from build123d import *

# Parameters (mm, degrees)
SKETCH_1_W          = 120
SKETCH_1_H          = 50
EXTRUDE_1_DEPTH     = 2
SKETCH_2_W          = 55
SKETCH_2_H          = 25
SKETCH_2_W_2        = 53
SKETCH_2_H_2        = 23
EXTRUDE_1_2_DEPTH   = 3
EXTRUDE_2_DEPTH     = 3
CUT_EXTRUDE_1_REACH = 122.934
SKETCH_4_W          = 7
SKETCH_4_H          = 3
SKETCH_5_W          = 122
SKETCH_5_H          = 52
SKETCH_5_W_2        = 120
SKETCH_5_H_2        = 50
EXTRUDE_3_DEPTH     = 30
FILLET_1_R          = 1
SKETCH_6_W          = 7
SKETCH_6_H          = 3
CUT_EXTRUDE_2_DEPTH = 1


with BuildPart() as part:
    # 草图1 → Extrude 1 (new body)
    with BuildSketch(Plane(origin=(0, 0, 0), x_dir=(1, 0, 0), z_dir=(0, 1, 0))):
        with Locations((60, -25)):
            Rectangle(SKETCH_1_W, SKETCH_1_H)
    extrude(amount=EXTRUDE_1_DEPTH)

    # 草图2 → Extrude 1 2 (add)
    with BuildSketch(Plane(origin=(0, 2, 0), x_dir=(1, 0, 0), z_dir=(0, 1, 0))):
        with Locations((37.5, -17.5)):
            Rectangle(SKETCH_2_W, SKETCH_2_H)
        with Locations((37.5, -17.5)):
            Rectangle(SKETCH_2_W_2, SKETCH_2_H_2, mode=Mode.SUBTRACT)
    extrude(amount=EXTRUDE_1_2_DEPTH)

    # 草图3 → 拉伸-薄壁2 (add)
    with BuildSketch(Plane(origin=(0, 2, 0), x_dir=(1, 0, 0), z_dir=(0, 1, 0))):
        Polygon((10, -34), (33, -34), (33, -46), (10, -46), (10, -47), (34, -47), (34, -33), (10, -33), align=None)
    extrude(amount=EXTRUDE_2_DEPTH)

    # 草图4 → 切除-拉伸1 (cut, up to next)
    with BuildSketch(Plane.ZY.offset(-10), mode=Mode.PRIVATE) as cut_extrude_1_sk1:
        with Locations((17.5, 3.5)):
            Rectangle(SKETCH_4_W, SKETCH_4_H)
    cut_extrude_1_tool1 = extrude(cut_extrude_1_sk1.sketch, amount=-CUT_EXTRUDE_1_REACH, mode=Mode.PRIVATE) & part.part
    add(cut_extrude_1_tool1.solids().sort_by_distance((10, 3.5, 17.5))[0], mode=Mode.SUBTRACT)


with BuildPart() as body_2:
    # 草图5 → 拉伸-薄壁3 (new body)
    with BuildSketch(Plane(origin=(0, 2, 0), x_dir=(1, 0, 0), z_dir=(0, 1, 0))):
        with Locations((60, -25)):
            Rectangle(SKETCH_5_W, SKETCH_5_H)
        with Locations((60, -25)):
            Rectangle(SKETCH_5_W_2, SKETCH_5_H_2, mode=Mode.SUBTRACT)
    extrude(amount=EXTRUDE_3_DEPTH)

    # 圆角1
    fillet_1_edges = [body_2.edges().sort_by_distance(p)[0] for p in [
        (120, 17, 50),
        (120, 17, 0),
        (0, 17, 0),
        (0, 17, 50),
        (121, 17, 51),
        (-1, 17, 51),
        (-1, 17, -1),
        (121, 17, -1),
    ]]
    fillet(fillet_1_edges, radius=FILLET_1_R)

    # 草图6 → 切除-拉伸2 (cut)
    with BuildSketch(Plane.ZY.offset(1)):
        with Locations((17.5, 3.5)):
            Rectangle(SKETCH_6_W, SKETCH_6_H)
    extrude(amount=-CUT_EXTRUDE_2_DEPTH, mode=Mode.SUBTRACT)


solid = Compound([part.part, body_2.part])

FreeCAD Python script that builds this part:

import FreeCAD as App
import Part
import Sketcher

V = App.Vector


def edges_at(feature, points):
    """Names of the edges that pass closest to the given points."""
    edges = feature.Shape.Edges
    near = lambda p: min(range(len(edges)), key=lambda i: edges[i].distToShape(Part.Vertex(*p))[0])
    return sorted({f"Edge{near(p) + 1}" for p in points})

doc = App.newDocument("Part")
params = doc.addObject("Spreadsheet::Sheet", "Params")
for row, (alias, value) in enumerate([
    ("sketch1_width", "120 mm"),
    ("sketch1_height", "50 mm"),
    ("pad1_length", "2 mm"),
    ("sketch2_width", "55 mm"),
    ("sketch2_width2", "53 mm"),
    ("sketch2_height", "25 mm"),
    ("sketch2_height2", "23 mm"),
    ("pad2_length", "3 mm"),
    ("sketch3_width", "23 mm"),
    ("sketch3_width2", "24 mm"),
    ("sketch3_height", "12 mm"),
    ("sketch3_height2", "1 mm"),
    ("pad3_length", "3 mm"),
    ("sketch4_width", "3 mm"),
    ("sketch4_height", "7 mm"),
    ("sketch5_width", "122 mm"),
    ("sketch5_width2", "120 mm"),
    ("sketch5_height", "52 mm"),
    ("sketch5_height2", "50 mm"),
    ("pad4_length", "30 mm"),
    ("fillet_radius", "1 mm"),
    ("sketch6_width", "3 mm"),
    ("sketch6_height", "7 mm"),
    ("pocket2_length", "1 mm"),
], start=1):
    params.set(f"A{row}", alias)
    params.set(f"B{row}", "=" + value)
    params.setAlias(f"B{row}", alias)

body = doc.addObject("PartDesign::Body", "Body")

sketch1 = doc.addObject("Sketcher::SketchObject", "Sketch")
body.addObject(sketch1)
sketch1.AttachmentSupport = (doc.XZ_Plane, [""])
sketch1.MapMode = "FlatFace"
sketch1.addGeometry(Part.LineSegment(V(0, 0, 0), V(0, 50, 0)), False)
sketch1.addGeometry(Part.LineSegment(V(0, 50, 0), V(120, 50, 0)), False)
sketch1.addGeometry(Part.LineSegment(V(120, 50, 0), V(120, 0, 0)), False)
sketch1.addGeometry(Part.LineSegment(V(120, 0, 0), V(0, 0, 0)), False)
sketch1.addConstraint(Sketcher.Constraint("Coincident", 0, 2, 1, 1))
sketch1.addConstraint(Sketcher.Constraint("Coincident", 1, 2, 2, 1))
sketch1.addConstraint(Sketcher.Constraint("Coincident", 2, 2, 3, 1))
sketch1.addConstraint(Sketcher.Constraint("Coincident", 3, 2, 0, 1))
sketch1.addConstraint(Sketcher.Constraint("Vertical", 0))
sketch1.addConstraint(Sketcher.Constraint("Horizontal", 1))
sketch1.addConstraint(Sketcher.Constraint("Vertical", 2))
sketch1.addConstraint(Sketcher.Constraint("Horizontal", 3))
sketch1.addConstraint(Sketcher.Constraint("Coincident", 3, 2, -1, 1))
sketch1.addConstraint(Sketcher.Constraint("DistanceX", 1, 1, 1, 2, 120.0))
sketch1.addConstraint(Sketcher.Constraint("DistanceY", 0, 1, 0, 2, 50.0))
sketch1.setExpression("Constraints[9]", "Params.sketch1_width")
sketch1.setExpression("Constraints[10]", "Params.sketch1_height")
pad1 = doc.addObject("PartDesign::Pad", "Pad")
body.addObject(pad1)
pad1.Profile = sketch1
pad1.setExpression("Length", "Params.pad1_length")
pad1.Reversed = True

sketch2 = doc.addObject("Sketcher::SketchObject", "Sketch001")
body.addObject(sketch2)
sketch2.AttachmentSupport = (doc.XZ_Plane, [""])
sketch2.MapMode = "FlatFace"
sketch2.AttachmentOffset = App.Placement(V(0, 0, -2), App.Rotation())
sketch2.addGeometry(Part.LineSegment(V(10, 5, 0), V(10, 30, 0)), False)
sketch2.addGeometry(Part.LineSegment(V(10, 30, 0), V(65, 30, 0)), False)
sketch2.addGeometry(Part.LineSegment(V(65, 30, 0), V(65, 5, 0)), False)
sketch2.addGeometry(Part.LineSegment(V(65, 5, 0), V(10, 5, 0)), False)
sketch2.addGeometry(Part.LineSegment(V(64, 29, 0), V(11, 29, 0)), False)
sketch2.addGeometry(Part.LineSegment(V(11, 29, 0), V(11, 6, 0)), False)
sketch2.addGeometry(Part.LineSegment(V(11, 6, 0), V(64, 6, 0)), False)
sketch2.addGeometry(Part.LineSegment(V(64, 6, 0), V(64, 29, 0)), False)
sketch2.addConstraint(Sketcher.Constraint("Coincident", 0, 2, 1, 1))
sketch2.addConstraint(Sketcher.Constraint("Coincident", 1, 2, 2, 1))
sketch2.addConstraint(Sketcher.Constraint("Coincident", 2, 2, 3, 1))
sketch2.addConstraint(Sketcher.Constraint("Coincident", 3, 2, 0, 1))
sketch2.addConstraint(Sketcher.Constraint("Coincident", 4, 2, 5, 1))
sketch2.addConstraint(Sketcher.Constraint("Coincident", 5, 2, 6, 1))
sketch2.addConstraint(Sketcher.Constraint("Coincident", 6, 2, 7, 1))
sketch2.addConstraint(Sketcher.Constraint("Coincident", 7, 2, 4, 1))
sketch2.addConstraint(Sketcher.Constraint("Vertical", 0))
sketch2.addConstraint(Sketcher.Constraint("Horizontal", 1))
sketch2.addConstraint(Sketcher.Constraint("Vertical", 2))
sketch2.addConstraint(Sketcher.Constraint("Horizontal", 3))
sketch2.addConstraint(Sketcher.Constraint("Horizontal", 4))
sketch2.addConstraint(Sketcher.Constraint("Vertical", 5))
sketch2.addConstraint(Sketcher.Constraint("Horizontal", 6))
sketch2.addConstraint(Sketcher.Constraint("Vertical", 7))
sketch2.addConstraint(Sketcher.Constraint("DistanceX", 1, 1, 1, 2, 55.0))
sketch2.addConstraint(Sketcher.Constraint("DistanceX", 4, 2, 4, 1, 53.0))
sketch2.addConstraint(Sketcher.Constraint("DistanceY", 0, 1, 0, 2, 25.0))
sketch2.addConstraint(Sketcher.Constraint("DistanceY", 5, 2, 5, 1, 23.0))
sketch2.addConstraint(Sketcher.Constraint("DistanceX", -1, 1, 0, 2, 10.0))
sketch2.addConstraint(Sketcher.Constraint("DistanceY", -1, 1, 0, 2, 30.0))
sketch2.addConstraint(Sketcher.Constraint("DistanceX", -1, 1, 4, 2, 11.0))
sketch2.addConstraint(Sketcher.Constraint("DistanceY", -1, 1, 4, 2, 29.0))
sketch2.setExpression("Constraints[16]", "Params.sketch2_width")
sketch2.setExpression("Constraints[17]", "Params.sketch2_width2")
sketch2.setExpression("Constraints[18]", "Params.sketch2_height")
sketch2.setExpression("Constraints[19]", "Params.sketch2_height2")
pad2 = doc.addObject("PartDesign::Pad", "Pad001")
body.addObject(pad2)
pad2.Profile = sketch2
pad2.setExpression("Length", "Params.pad2_length")
pad2.Reversed = True

sketch3 = doc.addObject("Sketcher::SketchObject", "Sketch002")
body.addObject(sketch3)
sketch3.AttachmentSupport = (doc.XZ_Plane, [""])
sketch3.MapMode = "FlatFace"
sketch3.AttachmentOffset = App.Placement(V(0, 0, -2), App.Rotation())
sketch3.addGeometry(Part.LineSegment(V(10, 34, 0), V(33, 34, 0)), False)
sketch3.addGeometry(Part.LineSegment(V(33, 34, 0), V(33, 46, 0)), False)
sketch3.addGeometry(Part.LineSegment(V(33, 46, 0), V(10, 46, 0)), False)
sketch3.addGeometry(Part.LineSegment(V(10, 46, 0), V(10, 47, 0)), False)
sketch3.addGeometry(Part.LineSegment(V(10, 47, 0), V(34, 47, 0)), False)
sketch3.addGeometry(Part.LineSegment(V(34, 47, 0), V(34, 33, 0)), False)
sketch3.addGeometry(Part.LineSegment(V(34, 33, 0), V(10, 33, 0)), False)
sketch3.addGeometry(Part.LineSegment(V(10, 33, 0), V(10, 34, 0)), False)
sketch3.addConstraint(Sketcher.Constraint("Coincident", 0, 2, 1, 1))
sketch3.addConstraint(Sketcher.Constraint("Coincident", 1, 2, 2, 1))
sketch3.addConstraint(Sketcher.Constraint("Coincident", 2, 2, 3, 1))
sketch3.addConstraint(Sketcher.Constraint("Coincident", 3, 2, 4, 1))
sketch3.addConstraint(Sketcher.Constraint("Coincident", 4, 2, 5, 1))
sketch3.addConstraint(Sketcher.Constraint("Coincident", 5, 2, 6, 1))
sketch3.addConstraint(Sketcher.Constraint("Coincident", 6, 2, 7, 1))
sketch3.addConstraint(Sketcher.Constraint("Coincident", 7, 2, 0, 1))
sketch3.addConstraint(Sketcher.Constraint("Horizontal", 0))
sketch3.addConstraint(Sketcher.Constraint("Vertical", 1))
sketch3.addConstraint(Sketcher.Constraint("Horizontal", 2))
sketch3.addConstraint(Sketcher.Constraint("Vertical", 3))
sketch3.addConstraint(Sketcher.Constraint("Horizontal", 4))
sketch3.addConstraint(Sketcher.Constraint("Vertical", 5))
sketch3.addConstraint(Sketcher.Constraint("Horizontal", 6))
sketch3.addConstraint(Sketcher.Constraint("Vertical", 7))
sketch3.addConstraint(Sketcher.Constraint("Vertical", 3, 2, 6, 2))
sketch3.addConstraint(Sketcher.Constraint("Equal", 3, 7))
sketch3.addConstraint(Sketcher.Constraint("DistanceX", 0, 1, 0, 2, 23.0))
sketch3.addConstraint(Sketcher.Constraint("DistanceX", 4, 1, 4, 2, 24.0))
sketch3.addConstraint(Sketcher.Constraint("DistanceY", 1, 1, 1, 2, 12.0))
sketch3.addConstraint(Sketcher.Constraint("DistanceY", 3, 1, 3, 2, 1.0))
sketch3.addConstraint(Sketcher.Constraint("DistanceX", -1, 1, 0, 2, 33.0))
sketch3.addConstraint(Sketcher.Constraint("DistanceY", -1, 1, 0, 2, 34.0))
sketch3.setExpression("Constraints[18]", "Params.sketch3_width")
sketch3.setExpression("Constraints[19]", "Params.sketch3_width2")
sketch3.setExpression("Constraints[20]", "Params.sketch3_height")
sketch3.setExpression("Constraints[21]", "Params.sketch3_height2")
pad3 = doc.addObject("PartDesign::Pad", "Pad002")
body.addObject(pad3)
pad3.Profile = sketch3
pad3.setExpression("Length", "Params.pad3_length")
pad3.Reversed = True

sketch4 = doc.addObject("Sketcher::SketchObject", "Sketch003")
body.addObject(sketch4)
sketch4.AttachmentSupport = (doc.YZ_Plane, [""])
sketch4.MapMode = "FlatFace"
sketch4.AttachmentOffset = App.Placement(V(0, 0, 10), App.Rotation())
sketch4.addGeometry(Part.LineSegment(V(5, 14, 0), V(2, 14, 0)), False)
sketch4.addGeometry(Part.LineSegment(V(2, 14, 0), V(2, 21, 0)), False)
sketch4.addGeometry(Part.LineSegment(V(2, 21, 0), V(5, 21, 0)), False)
sketch4.addGeometry(Part.LineSegment(V(5, 21, 0), V(5, 14, 0)), False)
sketch4.addConstraint(Sketcher.Constraint("Coincident", 0, 2, 1, 1))
sketch4.addConstraint(Sketcher.Constraint("Coincident", 1, 2, 2, 1))
sketch4.addConstraint(Sketcher.Constraint("Coincident", 2, 2, 3, 1))
sketch4.addConstraint(Sketcher.Constraint("Coincident", 3, 2, 0, 1))
sketch4.addConstraint(Sketcher.Constraint("Horizontal", 0))
sketch4.addConstraint(Sketcher.Constraint("Vertical", 1))
sketch4.addConstraint(Sketcher.Constraint("Horizontal", 2))
sketch4.addConstraint(Sketcher.Constraint("Vertical", 3))
sketch4.addConstraint(Sketcher.Constraint("DistanceX", 0, 2, 0, 1, 3.0))
sketch4.addConstraint(Sketcher.Constraint("DistanceY", 1, 1, 1, 2, 7.0))
sketch4.addConstraint(Sketcher.Constraint("DistanceX", -1, 1, 0, 2, 2.0))
sketch4.addConstraint(Sketcher.Constraint("DistanceY", -1, 1, 0, 2, 14.0))
sketch4.setExpression("Constraints[8]", "Params.sketch4_width")
sketch4.setExpression("Constraints[9]", "Params.sketch4_height")
pocket1 = doc.addObject("PartDesign::Pocket", "Pocket")
body.addObject(pocket1)
pocket1.Profile = sketch4
pocket1.Type = "UpToFirst"
pocket1.Reversed = True
body2 = doc.addObject("PartDesign::Body", "Body001")

sketch5 = doc.addObject("Sketcher::SketchObject", "Sketch004")
body2.addObject(sketch5)
sketch5.AttachmentSupport = (doc.getObject("XZ_Plane001"), [""])
sketch5.MapMode = "FlatFace"
sketch5.AttachmentOffset = App.Placement(V(0, 0, -2), App.Rotation())
sketch5.addGeometry(Part.LineSegment(V(-1, -1, 0), V(-1, 51, 0)), False)
sketch5.addGeometry(Part.LineSegment(V(-1, 51, 0), V(121, 51, 0)), False)
sketch5.addGeometry(Part.LineSegment(V(121, 51, 0), V(121, -1, 0)), False)
sketch5.addGeometry(Part.LineSegment(V(121, -1, 0), V(-1, -1, 0)), False)
sketch5.addGeometry(Part.LineSegment(V(120, 50, 0), V(0, 50, 0)), False)
sketch5.addGeometry(Part.LineSegment(V(0, 50, 0), V(0, 0, 0)), False)
sketch5.addGeometry(Part.LineSegment(V(0, 0, 0), V(120, 0, 0)), False)
sketch5.addGeometry(Part.LineSegment(V(120, 0, 0), V(120, 50, 0)), False)
sketch5.addConstraint(Sketcher.Constraint("Coincident", 0, 2, 1, 1))
sketch5.addConstraint(Sketcher.Constraint("Coincident", 1, 2, 2, 1))
sketch5.addConstraint(Sketcher.Constraint("Coincident", 2, 2, 3, 1))
sketch5.addConstraint(Sketcher.Constraint("Coincident", 3, 2, 0, 1))
sketch5.addConstraint(Sketcher.Constraint("Coincident", 4, 2, 5, 1))
sketch5.addConstraint(Sketcher.Constraint("Coincident", 5, 2, 6, 1))
sketch5.addConstraint(Sketcher.Constraint("Coincident", 6, 2, 7, 1))
sketch5.addConstraint(Sketcher.Constraint("Coincident", 7, 2, 4, 1))
sketch5.addConstraint(Sketcher.Constraint("Vertical", 0))
sketch5.addConstraint(Sketcher.Constraint("Horizontal", 1))
sketch5.addConstraint(Sketcher.Constraint("Vertical", 2))
sketch5.addConstraint(Sketcher.Constraint("Horizontal", 3))
sketch5.addConstraint(Sketcher.Constraint("Horizontal", 4))
sketch5.addConstraint(Sketcher.Constraint("Vertical", 5))
sketch5.addConstraint(Sketcher.Constraint("Horizontal", 6))
sketch5.addConstraint(Sketcher.Constraint("Vertical", 7))
sketch5.addConstraint(Sketcher.Constraint("Coincident", 5, 2, -1, 1))
sketch5.addConstraint(Sketcher.Constraint("DistanceX", 1, 1, 1, 2, 122.0))
sketch5.addConstraint(Sketcher.Constraint("DistanceX", 4, 2, 4, 1, 120.0))
sketch5.addConstraint(Sketcher.Constraint("DistanceY", 0, 1, 0, 2, 52.0))
sketch5.addConstraint(Sketcher.Constraint("DistanceY", 5, 2, 5, 1, 50.0))
sketch5.addConstraint(Sketcher.Constraint("DistanceX", 0, 2, -1, 1, 1.0))
sketch5.addConstraint(Sketcher.Constraint("DistanceY", -1, 1, 0, 2, 51.0))
sketch5.setExpression("Constraints[17]", "Params.sketch5_width")
sketch5.setExpression("Constraints[18]", "Params.sketch5_width2")
sketch5.setExpression("Constraints[19]", "Params.sketch5_height")
sketch5.setExpression("Constraints[20]", "Params.sketch5_height2")
pad4 = doc.addObject("PartDesign::Pad", "Pad003")
body2.addObject(pad4)
pad4.Profile = sketch5
pad4.setExpression("Length", "Params.pad4_length")
pad4.Reversed = True
doc.recompute()

fillet = doc.addObject("PartDesign::Fillet", "Fillet")
body2.addObject(fillet)
fillet.Base = (pad4, edges_at(pad4, [
    (120, 17, 50),
    (120, 17, 0),
    (0, 17, 0),
    (0, 17, 50),
    (121, 17, 51),
    (-1, 17, 51),
    (-1, 17, -1),
    (121, 17, -1),
]))
fillet.setExpression("Radius", "Params.fillet_radius")

sketch6 = doc.addObject("Sketcher::SketchObject", "Sketch005")
body2.addObject(sketch6)
sketch6.AttachmentSupport = (doc.getObject("YZ_Plane001"), [""])
sketch6.MapMode = "FlatFace"
sketch6.AttachmentOffset = App.Placement(V(0, 0, -1), App.Rotation())
sketch6.addGeometry(Part.LineSegment(V(5, 14, 0), V(2, 14, 0)), False)
sketch6.addGeometry(Part.LineSegment(V(2, 14, 0), V(2, 21, 0)), False)
sketch6.addGeometry(Part.LineSegment(V(2, 21, 0), V(5, 21, 0)), False)
sketch6.addGeometry(Part.LineSegment(V(5, 21, 0), V(5, 14, 0)), False)
sketch6.addConstraint(Sketcher.Constraint("Coincident", 0, 2, 1, 1))
sketch6.addConstraint(Sketcher.Constraint("Coincident", 1, 2, 2, 1))
sketch6.addConstraint(Sketcher.Constraint("Coincident", 2, 2, 3, 1))
sketch6.addConstraint(Sketcher.Constraint("Coincident", 3, 2, 0, 1))
sketch6.addConstraint(Sketcher.Constraint("Horizontal", 0))
sketch6.addConstraint(Sketcher.Constraint("Vertical", 1))
sketch6.addConstraint(Sketcher.Constraint("Horizontal", 2))
sketch6.addConstraint(Sketcher.Constraint("Vertical", 3))
sketch6.addConstraint(Sketcher.Constraint("DistanceX", 0, 2, 0, 1, 3.0))
sketch6.addConstraint(Sketcher.Constraint("DistanceY", 1, 1, 1, 2, 7.0))
sketch6.addConstraint(Sketcher.Constraint("DistanceX", -1, 1, 0, 2, 2.0))
sketch6.addConstraint(Sketcher.Constraint("DistanceY", -1, 1, 0, 2, 14.0))
sketch6.setExpression("Constraints[8]", "Params.sketch6_width")
sketch6.setExpression("Constraints[9]", "Params.sketch6_height")
pocket2 = doc.addObject("PartDesign::Pocket", "Pocket001")
body2.addObject(pocket2)
pocket2.Profile = sketch6
pocket2.setExpression("Length", "Params.pocket2_length")
pocket2.Reversed = True

doc.recompute()
